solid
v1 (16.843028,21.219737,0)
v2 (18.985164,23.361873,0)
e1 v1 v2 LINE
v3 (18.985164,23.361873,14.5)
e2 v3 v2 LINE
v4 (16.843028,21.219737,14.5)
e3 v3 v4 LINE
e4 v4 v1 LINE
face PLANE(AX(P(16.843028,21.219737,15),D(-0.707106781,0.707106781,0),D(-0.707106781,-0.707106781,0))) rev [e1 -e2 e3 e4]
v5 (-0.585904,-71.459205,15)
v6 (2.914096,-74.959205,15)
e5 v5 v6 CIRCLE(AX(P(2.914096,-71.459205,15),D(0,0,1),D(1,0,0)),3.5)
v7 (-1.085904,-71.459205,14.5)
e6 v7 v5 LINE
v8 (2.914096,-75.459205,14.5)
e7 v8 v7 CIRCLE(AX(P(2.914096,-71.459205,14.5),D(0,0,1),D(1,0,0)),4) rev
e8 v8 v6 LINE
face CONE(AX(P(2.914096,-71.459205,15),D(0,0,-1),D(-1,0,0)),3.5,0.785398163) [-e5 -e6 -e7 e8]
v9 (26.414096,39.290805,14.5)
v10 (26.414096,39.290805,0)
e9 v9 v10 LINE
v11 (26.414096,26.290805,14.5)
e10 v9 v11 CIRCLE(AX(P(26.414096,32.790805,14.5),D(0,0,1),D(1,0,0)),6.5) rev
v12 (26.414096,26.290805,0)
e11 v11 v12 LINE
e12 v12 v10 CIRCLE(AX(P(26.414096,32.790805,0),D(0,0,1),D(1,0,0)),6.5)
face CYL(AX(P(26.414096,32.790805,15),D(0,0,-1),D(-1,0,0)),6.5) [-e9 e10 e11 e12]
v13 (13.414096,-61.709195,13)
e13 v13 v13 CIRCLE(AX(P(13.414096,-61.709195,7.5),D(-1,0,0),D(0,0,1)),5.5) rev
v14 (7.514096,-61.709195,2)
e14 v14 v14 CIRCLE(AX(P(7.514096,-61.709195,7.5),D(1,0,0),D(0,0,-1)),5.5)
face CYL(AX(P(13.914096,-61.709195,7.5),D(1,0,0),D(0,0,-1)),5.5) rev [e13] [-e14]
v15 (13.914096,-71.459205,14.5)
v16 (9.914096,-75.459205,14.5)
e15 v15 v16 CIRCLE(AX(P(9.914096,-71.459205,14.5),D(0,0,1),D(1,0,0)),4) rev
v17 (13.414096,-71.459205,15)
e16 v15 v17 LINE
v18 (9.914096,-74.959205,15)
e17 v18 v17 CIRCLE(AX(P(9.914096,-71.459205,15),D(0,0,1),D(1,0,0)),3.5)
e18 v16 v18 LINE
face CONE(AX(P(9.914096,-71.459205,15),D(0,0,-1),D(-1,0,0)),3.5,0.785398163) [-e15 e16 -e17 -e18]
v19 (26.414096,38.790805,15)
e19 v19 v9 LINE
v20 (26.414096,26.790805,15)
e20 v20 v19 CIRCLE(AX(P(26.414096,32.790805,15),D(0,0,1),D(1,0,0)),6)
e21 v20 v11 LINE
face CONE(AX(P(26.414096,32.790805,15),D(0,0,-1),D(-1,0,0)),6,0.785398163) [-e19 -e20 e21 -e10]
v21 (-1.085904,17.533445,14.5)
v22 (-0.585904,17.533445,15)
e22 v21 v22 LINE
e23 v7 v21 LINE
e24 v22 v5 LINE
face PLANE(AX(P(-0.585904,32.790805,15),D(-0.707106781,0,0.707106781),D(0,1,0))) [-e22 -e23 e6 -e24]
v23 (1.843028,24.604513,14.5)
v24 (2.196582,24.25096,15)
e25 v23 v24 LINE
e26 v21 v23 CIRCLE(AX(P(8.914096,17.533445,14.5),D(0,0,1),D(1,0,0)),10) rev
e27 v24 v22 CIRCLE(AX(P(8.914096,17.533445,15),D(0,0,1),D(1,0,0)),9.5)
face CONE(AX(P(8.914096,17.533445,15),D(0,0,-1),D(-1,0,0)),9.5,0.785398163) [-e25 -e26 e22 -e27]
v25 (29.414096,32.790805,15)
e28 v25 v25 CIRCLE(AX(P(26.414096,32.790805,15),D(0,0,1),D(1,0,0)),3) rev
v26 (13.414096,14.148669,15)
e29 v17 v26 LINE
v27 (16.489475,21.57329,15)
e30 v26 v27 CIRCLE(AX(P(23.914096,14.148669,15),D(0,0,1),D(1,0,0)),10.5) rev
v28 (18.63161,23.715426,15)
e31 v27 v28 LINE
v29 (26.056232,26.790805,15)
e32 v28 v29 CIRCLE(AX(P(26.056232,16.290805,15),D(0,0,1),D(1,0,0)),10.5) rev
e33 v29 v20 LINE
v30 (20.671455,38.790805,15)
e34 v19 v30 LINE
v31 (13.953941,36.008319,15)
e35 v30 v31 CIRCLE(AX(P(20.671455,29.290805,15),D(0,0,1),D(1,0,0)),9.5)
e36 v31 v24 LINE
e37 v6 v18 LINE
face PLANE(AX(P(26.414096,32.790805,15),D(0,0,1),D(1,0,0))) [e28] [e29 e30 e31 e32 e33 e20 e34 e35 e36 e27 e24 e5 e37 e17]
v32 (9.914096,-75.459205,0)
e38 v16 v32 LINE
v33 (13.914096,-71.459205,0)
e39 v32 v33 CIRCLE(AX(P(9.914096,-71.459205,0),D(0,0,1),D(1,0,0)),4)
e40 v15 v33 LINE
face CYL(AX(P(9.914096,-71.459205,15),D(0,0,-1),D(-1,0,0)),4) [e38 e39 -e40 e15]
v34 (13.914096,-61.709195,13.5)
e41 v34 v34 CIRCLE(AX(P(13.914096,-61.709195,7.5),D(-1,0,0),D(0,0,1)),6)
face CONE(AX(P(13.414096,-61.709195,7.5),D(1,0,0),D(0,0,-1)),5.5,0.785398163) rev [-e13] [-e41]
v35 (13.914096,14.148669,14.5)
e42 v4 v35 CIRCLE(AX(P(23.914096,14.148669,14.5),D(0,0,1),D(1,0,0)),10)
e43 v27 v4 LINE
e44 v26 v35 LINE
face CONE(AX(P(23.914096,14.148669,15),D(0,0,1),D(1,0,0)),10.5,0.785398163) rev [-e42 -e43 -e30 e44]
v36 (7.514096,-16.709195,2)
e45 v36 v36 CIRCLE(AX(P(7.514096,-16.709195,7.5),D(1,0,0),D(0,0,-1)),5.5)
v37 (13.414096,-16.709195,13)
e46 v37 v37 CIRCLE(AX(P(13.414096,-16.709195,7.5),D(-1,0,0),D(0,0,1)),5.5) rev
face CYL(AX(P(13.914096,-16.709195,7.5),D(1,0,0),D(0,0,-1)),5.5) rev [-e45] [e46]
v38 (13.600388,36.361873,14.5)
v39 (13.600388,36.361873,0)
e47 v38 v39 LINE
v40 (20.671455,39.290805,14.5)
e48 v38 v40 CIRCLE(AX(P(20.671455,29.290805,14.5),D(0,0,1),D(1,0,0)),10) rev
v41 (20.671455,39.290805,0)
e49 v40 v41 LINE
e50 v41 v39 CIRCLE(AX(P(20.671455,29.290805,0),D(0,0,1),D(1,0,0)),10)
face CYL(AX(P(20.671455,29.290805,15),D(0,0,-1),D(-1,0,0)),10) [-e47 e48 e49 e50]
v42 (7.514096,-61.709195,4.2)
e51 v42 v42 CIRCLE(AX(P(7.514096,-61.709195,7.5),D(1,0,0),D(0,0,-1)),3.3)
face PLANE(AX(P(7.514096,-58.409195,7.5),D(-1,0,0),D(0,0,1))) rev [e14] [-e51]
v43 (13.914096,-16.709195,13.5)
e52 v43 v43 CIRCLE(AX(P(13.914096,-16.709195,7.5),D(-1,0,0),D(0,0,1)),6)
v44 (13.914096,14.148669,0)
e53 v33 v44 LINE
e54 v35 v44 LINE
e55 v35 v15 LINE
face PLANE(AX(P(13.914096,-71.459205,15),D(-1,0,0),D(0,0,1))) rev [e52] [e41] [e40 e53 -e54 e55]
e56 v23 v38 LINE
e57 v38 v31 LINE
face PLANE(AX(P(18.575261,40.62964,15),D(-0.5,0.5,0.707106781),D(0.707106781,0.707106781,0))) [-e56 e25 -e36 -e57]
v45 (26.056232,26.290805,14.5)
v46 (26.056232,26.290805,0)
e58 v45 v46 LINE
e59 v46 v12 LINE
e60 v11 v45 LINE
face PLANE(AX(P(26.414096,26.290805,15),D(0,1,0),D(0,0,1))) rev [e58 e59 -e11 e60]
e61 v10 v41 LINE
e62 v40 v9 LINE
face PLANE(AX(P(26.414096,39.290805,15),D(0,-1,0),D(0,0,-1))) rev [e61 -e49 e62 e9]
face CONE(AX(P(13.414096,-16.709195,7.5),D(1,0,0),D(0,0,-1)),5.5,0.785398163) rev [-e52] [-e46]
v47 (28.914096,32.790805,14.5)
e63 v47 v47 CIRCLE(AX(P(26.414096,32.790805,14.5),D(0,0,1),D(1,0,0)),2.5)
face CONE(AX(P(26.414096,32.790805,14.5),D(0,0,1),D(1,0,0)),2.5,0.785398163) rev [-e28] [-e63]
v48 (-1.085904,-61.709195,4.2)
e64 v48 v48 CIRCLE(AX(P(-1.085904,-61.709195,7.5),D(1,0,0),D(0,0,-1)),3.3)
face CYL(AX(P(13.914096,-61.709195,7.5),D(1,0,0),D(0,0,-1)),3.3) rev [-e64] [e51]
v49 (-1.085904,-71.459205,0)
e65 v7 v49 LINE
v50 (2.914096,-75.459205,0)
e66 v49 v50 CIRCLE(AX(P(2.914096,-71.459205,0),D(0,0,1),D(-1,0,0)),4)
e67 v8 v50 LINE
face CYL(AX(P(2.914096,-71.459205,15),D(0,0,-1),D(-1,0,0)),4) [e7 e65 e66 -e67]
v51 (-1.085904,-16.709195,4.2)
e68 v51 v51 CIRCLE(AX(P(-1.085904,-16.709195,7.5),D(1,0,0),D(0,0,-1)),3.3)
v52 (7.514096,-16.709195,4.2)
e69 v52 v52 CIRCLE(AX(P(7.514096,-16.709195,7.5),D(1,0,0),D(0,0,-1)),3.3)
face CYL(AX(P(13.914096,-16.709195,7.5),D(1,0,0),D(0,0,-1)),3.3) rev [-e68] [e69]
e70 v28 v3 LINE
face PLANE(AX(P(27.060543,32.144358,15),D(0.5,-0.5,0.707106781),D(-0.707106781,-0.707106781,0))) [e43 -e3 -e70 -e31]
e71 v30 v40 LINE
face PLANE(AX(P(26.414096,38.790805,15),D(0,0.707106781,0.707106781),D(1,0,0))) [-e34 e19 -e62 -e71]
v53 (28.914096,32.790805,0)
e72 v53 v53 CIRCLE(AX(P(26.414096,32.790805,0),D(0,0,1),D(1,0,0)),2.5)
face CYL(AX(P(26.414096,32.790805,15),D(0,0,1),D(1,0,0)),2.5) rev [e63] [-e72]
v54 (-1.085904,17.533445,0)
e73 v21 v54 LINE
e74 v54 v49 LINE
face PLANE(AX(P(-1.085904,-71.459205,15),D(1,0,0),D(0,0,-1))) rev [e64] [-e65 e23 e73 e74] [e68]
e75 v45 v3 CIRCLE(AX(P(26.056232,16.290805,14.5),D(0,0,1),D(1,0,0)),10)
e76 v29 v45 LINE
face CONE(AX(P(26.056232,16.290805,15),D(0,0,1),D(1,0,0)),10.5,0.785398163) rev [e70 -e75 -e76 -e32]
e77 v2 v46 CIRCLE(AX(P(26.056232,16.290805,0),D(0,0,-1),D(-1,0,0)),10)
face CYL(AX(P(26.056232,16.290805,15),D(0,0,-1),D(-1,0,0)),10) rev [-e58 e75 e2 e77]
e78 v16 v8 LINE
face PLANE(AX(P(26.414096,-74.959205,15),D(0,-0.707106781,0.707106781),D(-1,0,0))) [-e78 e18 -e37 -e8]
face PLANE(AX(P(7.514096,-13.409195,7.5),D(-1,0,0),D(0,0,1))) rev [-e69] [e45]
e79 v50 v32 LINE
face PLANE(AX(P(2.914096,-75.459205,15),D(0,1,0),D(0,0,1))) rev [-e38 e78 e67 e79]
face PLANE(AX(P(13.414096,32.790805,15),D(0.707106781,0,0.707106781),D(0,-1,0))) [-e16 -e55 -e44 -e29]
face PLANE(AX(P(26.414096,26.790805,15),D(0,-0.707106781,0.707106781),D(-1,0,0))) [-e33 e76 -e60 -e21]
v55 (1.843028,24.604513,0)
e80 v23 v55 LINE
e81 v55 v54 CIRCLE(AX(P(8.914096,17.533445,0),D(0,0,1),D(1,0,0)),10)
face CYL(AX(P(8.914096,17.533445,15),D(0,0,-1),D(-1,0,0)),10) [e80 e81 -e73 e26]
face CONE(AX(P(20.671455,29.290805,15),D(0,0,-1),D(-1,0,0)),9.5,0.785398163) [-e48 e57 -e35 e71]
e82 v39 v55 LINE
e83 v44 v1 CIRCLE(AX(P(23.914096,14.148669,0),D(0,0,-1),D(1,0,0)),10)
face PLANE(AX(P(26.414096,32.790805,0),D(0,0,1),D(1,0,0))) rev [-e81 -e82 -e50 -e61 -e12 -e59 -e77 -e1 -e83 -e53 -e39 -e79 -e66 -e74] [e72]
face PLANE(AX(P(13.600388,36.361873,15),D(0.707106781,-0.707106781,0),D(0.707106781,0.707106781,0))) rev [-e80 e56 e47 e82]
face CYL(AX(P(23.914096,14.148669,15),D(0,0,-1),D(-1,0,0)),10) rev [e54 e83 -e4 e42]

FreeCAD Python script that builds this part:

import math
import FreeCAD as App
import Part
import Sketcher
from FreeCAD import Vector
Q = App.Units.Quantity


def edges_at(feature, points):
    """Names of the edges that pass closest to the given points."""
    edges = feature.Shape.Edges
    near = lambda p: min(range(len(edges)), key=lambda i: edges[i].distToShape(Part.Vertex(*p))[0])
    return sorted({f"Edge{near(p) + 1}" for p in points})

doc = App.newDocument("Part")
body = doc.addObject("PartDesign::Body", "Body")

# Sketch on XY plane
sketch1 = doc.addObject("Sketcher::SketchObject", "Sketch")
body.addObject(sketch1)
sketch1.AttachmentSupport = (doc.XY_Plane, [""])
sketch1.MapMode = "FlatFace"
sketch1.addGeometry([
    Part.LineSegment(Vector(2.914096, -75.459205, 0), Vector(9.914096, -75.459205, 0)),  # 0
    Part.ArcOfCircle(Part.Circle(Vector(9.914096, -71.459205, 0), Vector(0, 0, 1), 4), math.radians(-90), math.radians(0)),  # 1
    Part.LineSegment(Vector(13.914096, -71.459205, 0), Vector(13.914096, 14.148669, 0)),  # 2
    Part.ArcOfCircle(Part.Circle(Vector(23.914096, 14.148669, 0), Vector(0, 0, 1), 10), math.radians(135), math.radians(180)),  # 3
    Part.LineSegment(Vector(16.843028, 21.219737, 0), Vector(18.985164, 23.361873, 0)),  # 4
    Part.ArcOfCircle(Part.Circle(Vector(26.056232, 16.290805, 0), Vector(0, 0, 1), 10), math.radians(90), math.radians(135)),  # 5
    Part.LineSegment(Vector(26.056232, 26.290805, 0), Vector(26.414096, 26.290805, 0)),  # 6
    Part.ArcOfCircle(Part.Circle(Vector(26.414096, 32.790805, 0), Vector(0, 0, 1), 6.5), math.radians(-90), math.radians(90)),  # 7
    Part.LineSegment(Vector(26.414096, 39.290805, 0), Vector(20.671455, 39.290805, 0)),  # 8
    Part.ArcOfCircle(Part.Circle(Vector(20.671455, 29.290805, 0), Vector(0, 0, 1), 10), math.radians(90), math.radians(135)),  # 9
    Part.LineSegment(Vector(13.600388, 36.361873, 0), Vector(1.843028, 24.604513, 0)),  # 10
    Part.ArcOfCircle(Part.Circle(Vector(8.914096, 17.533445, 0), Vector(0, 0, 1), 10), math.radians(135), math.radians(180)),  # 11
    Part.LineSegment(Vector(-1.085904, 17.533445, 0), Vector(-1.085904, -71.459205, 0)),  # 12
    Part.ArcOfCircle(Part.Circle(Vector(2.914096, -71.459205, 0), Vector(0, 0, 1), 4), math.radians(-180), math.radians(-90)),  # 13
], False)
sketch1.addConstraint([
    Sketcher.Constraint("Tangent", 0, 2, 1, 1),
    Sketcher.Constraint("Tangent", 1, 2, 2, 1),
    Sketcher.Constraint("Tangent", 2, 2, 3, 2),
    Sketcher.Constraint("Tangent", 3, 1, 4, 1),
    Sketcher.Constraint("Tangent", 4, 2, 5, 2),
    Sketcher.Constraint("Tangent", 5, 1, 6, 1),
    Sketcher.Constraint("Tangent", 6, 2, 7, 1),
    Sketcher.Constraint("Tangent", 7, 2, 8, 1),
    Sketcher.Constraint("Tangent", 8, 2, 9, 1),
    Sketcher.Constraint("Tangent", 9, 2, 10, 1),
    Sketcher.Constraint("Tangent", 10, 2, 11, 1),
    Sketcher.Constraint("Tangent", 11, 2, 12, 1),
    Sketcher.Constraint("Tangent", 12, 2, 13, 1),
    Sketcher.Constraint("Tangent", 13, 2, 0, 1),
    Sketcher.Constraint("Horizontal", 0),
    Sketcher.Constraint("Vertical", 2),
    Sketcher.Constraint("Horizontal", 6),
    Sketcher.Constraint("Horizontal", 8),
    Sketcher.Constraint("Vertical", 12),
    Sketcher.Constraint("Equal", 3, 5),
    Sketcher.Constraint("Equal", 5, 9),
    Sketcher.Constraint("Equal", 9, 11),
    Sketcher.Constraint("Equal", 1, 13),
    Sketcher.Constraint("Parallel", 4, 10),
    Sketcher.Constraint("Radius", 1, Q("4 mm")),
    Sketcher.Constraint("Radius", 3, Q("10 mm")),
    Sketcher.Constraint("Radius", 7, Q("6.5 mm")),
    Sketcher.Constraint("DistanceX", 0, 1, 0, 2, Q("7 mm")),
    Sketcher.Constraint("Angle", 4, Q("45 deg")),
    Sketcher.Constraint("DistanceX", 3, 3, 7, 3, Q("2.5 mm")),
    Sketcher.Constraint("DistanceX", 8, 2, 8, 1, Q("5.742641 mm")),
    Sketcher.Constraint("DistanceY", 12, 2, 12, 1, Q("88.99265 mm")),
    Sketcher.Constraint("DistanceX", 6, 1, 6, 2, Q("0.357864 mm")),
    Sketcher.Constraint("DistanceY", -1, 1, 3, 3, Q("14.148669 mm")),
    Sketcher.Constraint("DistanceX", -1, 1, 5, 3, Q("26.056232 mm")),
])
pad1 = doc.addObject("PartDesign::Pad", "Pad")
body.addObject(pad1)
pad1.Profile = sketch1
pad1.Length = 15

# Sketch on XY plane
sketch2 = doc.addObject("Sketcher::SketchObject", "Sketch001")
body.addObject(sketch2)
sketch2.AttachmentSupport = (doc.XY_Plane, [""])
sketch2.MapMode = "FlatFace"
sketch2.AttachmentOffset = App.Placement(Vector(0, 0, 15), App.Rotation())
sketch2.addGeometry(Part.Circle(Vector(26.414096, 32.790805, 0), Vector(0, 0, 1), 2.5), False)
sketch2.addConstraint([
    Sketcher.Constraint("Diameter", 0, Q("5 mm")),
    Sketcher.Constraint("DistanceX", -1, 1, 0, 3, Q("26.414096 mm")),
    Sketcher.Constraint("DistanceY", -1, 1, 0, 3, Q("32.790805 mm")),
])
doc.recompute()
hole = doc.addObject("PartDesign::Hole", "Hole")
body.addObject(hole)
hole.Profile = sketch2
hole.ThreadType = "None"
hole.Diameter = 5
hole.DepthType = "ThroughAll"

# Sketch on YZ plane
sketch3 = doc.addObject("Sketcher::SketchObject", "Sketch002")
body.addObject(sketch3)
sketch3.AttachmentSupport = (doc.YZ_Plane, [""])
sketch3.MapMode = "FlatFace"
sketch3.AttachmentOffset = App.Placement(Vector(0, 0, 13.914096), App.Rotation())
sketch3.addGeometry([
    Part.Circle(Vector(-16.709195, 7.5, 0), Vector(0, 0, 1), 3.3),
    Part.Circle(Vector(-61.709195, 7.5, 0), Vector(0, 0, 1), 3.3),
], False)
sketch3.addConstraint([
    Sketcher.Constraint("Equal", 0, 1),
    Sketcher.Constraint("Horizontal", 0, 3, 1, 3),
    Sketcher.Constraint("Diameter", 0, Q("6.6 mm")),
    Sketcher.Constraint("DistanceX", 1, 3, 0, 3, Q("45 mm")),
    Sketcher.Constraint("DistanceY", -1, 1, 0, 3, Q("7.5 mm")),
    Sketcher.Constraint("DistanceX", 0, 3, -1, 1, Q("16.709195 mm")),
])
doc.recompute()
hole2 = doc.addObject("PartDesign::Hole", "Hole001")
body.addObject(hole2)
hole2.Profile = sketch3
hole2.ThreadType = "None"
hole2.Diameter = 6.6
hole2.DepthType = "ThroughAll"
hole2.HoleCutType = "Counterbore"
hole2.HoleCutDiameter = 11
hole2.HoleCutDepth = 6.4
doc.recompute()

chamfer = doc.addObject("PartDesign::Chamfer", "Chamfer")
body.addObject(chamfer)
chamfer.Base = (hole2, edges_at(hole2, [
    (16.845, 38.53, 15),
    (7.722, 30.483, 15),
    (-0.325, 21.36, 15),
    (-1.086, -26.963, 15),
    (0.086, -74.288, 15),
    (6.414, -75.459, 15),
    (12.743, -74.288, 15),
    (13.914, -28.655, 15),
    (14.675, 17.976, 15),
    (17.914, 22.291, 15),
    (32.914, 32.791, 15),
    (22.229, 25.53, 15),
    (28.914, 32.791, 15),
    (26.235, 26.291, 15),
    (13.914, -61.709, 13),
    (13.914, -16.709, 13),
    (23.543, 39.291, 15),
]))
chamfer.Size = 0.5

doc.recompute()
